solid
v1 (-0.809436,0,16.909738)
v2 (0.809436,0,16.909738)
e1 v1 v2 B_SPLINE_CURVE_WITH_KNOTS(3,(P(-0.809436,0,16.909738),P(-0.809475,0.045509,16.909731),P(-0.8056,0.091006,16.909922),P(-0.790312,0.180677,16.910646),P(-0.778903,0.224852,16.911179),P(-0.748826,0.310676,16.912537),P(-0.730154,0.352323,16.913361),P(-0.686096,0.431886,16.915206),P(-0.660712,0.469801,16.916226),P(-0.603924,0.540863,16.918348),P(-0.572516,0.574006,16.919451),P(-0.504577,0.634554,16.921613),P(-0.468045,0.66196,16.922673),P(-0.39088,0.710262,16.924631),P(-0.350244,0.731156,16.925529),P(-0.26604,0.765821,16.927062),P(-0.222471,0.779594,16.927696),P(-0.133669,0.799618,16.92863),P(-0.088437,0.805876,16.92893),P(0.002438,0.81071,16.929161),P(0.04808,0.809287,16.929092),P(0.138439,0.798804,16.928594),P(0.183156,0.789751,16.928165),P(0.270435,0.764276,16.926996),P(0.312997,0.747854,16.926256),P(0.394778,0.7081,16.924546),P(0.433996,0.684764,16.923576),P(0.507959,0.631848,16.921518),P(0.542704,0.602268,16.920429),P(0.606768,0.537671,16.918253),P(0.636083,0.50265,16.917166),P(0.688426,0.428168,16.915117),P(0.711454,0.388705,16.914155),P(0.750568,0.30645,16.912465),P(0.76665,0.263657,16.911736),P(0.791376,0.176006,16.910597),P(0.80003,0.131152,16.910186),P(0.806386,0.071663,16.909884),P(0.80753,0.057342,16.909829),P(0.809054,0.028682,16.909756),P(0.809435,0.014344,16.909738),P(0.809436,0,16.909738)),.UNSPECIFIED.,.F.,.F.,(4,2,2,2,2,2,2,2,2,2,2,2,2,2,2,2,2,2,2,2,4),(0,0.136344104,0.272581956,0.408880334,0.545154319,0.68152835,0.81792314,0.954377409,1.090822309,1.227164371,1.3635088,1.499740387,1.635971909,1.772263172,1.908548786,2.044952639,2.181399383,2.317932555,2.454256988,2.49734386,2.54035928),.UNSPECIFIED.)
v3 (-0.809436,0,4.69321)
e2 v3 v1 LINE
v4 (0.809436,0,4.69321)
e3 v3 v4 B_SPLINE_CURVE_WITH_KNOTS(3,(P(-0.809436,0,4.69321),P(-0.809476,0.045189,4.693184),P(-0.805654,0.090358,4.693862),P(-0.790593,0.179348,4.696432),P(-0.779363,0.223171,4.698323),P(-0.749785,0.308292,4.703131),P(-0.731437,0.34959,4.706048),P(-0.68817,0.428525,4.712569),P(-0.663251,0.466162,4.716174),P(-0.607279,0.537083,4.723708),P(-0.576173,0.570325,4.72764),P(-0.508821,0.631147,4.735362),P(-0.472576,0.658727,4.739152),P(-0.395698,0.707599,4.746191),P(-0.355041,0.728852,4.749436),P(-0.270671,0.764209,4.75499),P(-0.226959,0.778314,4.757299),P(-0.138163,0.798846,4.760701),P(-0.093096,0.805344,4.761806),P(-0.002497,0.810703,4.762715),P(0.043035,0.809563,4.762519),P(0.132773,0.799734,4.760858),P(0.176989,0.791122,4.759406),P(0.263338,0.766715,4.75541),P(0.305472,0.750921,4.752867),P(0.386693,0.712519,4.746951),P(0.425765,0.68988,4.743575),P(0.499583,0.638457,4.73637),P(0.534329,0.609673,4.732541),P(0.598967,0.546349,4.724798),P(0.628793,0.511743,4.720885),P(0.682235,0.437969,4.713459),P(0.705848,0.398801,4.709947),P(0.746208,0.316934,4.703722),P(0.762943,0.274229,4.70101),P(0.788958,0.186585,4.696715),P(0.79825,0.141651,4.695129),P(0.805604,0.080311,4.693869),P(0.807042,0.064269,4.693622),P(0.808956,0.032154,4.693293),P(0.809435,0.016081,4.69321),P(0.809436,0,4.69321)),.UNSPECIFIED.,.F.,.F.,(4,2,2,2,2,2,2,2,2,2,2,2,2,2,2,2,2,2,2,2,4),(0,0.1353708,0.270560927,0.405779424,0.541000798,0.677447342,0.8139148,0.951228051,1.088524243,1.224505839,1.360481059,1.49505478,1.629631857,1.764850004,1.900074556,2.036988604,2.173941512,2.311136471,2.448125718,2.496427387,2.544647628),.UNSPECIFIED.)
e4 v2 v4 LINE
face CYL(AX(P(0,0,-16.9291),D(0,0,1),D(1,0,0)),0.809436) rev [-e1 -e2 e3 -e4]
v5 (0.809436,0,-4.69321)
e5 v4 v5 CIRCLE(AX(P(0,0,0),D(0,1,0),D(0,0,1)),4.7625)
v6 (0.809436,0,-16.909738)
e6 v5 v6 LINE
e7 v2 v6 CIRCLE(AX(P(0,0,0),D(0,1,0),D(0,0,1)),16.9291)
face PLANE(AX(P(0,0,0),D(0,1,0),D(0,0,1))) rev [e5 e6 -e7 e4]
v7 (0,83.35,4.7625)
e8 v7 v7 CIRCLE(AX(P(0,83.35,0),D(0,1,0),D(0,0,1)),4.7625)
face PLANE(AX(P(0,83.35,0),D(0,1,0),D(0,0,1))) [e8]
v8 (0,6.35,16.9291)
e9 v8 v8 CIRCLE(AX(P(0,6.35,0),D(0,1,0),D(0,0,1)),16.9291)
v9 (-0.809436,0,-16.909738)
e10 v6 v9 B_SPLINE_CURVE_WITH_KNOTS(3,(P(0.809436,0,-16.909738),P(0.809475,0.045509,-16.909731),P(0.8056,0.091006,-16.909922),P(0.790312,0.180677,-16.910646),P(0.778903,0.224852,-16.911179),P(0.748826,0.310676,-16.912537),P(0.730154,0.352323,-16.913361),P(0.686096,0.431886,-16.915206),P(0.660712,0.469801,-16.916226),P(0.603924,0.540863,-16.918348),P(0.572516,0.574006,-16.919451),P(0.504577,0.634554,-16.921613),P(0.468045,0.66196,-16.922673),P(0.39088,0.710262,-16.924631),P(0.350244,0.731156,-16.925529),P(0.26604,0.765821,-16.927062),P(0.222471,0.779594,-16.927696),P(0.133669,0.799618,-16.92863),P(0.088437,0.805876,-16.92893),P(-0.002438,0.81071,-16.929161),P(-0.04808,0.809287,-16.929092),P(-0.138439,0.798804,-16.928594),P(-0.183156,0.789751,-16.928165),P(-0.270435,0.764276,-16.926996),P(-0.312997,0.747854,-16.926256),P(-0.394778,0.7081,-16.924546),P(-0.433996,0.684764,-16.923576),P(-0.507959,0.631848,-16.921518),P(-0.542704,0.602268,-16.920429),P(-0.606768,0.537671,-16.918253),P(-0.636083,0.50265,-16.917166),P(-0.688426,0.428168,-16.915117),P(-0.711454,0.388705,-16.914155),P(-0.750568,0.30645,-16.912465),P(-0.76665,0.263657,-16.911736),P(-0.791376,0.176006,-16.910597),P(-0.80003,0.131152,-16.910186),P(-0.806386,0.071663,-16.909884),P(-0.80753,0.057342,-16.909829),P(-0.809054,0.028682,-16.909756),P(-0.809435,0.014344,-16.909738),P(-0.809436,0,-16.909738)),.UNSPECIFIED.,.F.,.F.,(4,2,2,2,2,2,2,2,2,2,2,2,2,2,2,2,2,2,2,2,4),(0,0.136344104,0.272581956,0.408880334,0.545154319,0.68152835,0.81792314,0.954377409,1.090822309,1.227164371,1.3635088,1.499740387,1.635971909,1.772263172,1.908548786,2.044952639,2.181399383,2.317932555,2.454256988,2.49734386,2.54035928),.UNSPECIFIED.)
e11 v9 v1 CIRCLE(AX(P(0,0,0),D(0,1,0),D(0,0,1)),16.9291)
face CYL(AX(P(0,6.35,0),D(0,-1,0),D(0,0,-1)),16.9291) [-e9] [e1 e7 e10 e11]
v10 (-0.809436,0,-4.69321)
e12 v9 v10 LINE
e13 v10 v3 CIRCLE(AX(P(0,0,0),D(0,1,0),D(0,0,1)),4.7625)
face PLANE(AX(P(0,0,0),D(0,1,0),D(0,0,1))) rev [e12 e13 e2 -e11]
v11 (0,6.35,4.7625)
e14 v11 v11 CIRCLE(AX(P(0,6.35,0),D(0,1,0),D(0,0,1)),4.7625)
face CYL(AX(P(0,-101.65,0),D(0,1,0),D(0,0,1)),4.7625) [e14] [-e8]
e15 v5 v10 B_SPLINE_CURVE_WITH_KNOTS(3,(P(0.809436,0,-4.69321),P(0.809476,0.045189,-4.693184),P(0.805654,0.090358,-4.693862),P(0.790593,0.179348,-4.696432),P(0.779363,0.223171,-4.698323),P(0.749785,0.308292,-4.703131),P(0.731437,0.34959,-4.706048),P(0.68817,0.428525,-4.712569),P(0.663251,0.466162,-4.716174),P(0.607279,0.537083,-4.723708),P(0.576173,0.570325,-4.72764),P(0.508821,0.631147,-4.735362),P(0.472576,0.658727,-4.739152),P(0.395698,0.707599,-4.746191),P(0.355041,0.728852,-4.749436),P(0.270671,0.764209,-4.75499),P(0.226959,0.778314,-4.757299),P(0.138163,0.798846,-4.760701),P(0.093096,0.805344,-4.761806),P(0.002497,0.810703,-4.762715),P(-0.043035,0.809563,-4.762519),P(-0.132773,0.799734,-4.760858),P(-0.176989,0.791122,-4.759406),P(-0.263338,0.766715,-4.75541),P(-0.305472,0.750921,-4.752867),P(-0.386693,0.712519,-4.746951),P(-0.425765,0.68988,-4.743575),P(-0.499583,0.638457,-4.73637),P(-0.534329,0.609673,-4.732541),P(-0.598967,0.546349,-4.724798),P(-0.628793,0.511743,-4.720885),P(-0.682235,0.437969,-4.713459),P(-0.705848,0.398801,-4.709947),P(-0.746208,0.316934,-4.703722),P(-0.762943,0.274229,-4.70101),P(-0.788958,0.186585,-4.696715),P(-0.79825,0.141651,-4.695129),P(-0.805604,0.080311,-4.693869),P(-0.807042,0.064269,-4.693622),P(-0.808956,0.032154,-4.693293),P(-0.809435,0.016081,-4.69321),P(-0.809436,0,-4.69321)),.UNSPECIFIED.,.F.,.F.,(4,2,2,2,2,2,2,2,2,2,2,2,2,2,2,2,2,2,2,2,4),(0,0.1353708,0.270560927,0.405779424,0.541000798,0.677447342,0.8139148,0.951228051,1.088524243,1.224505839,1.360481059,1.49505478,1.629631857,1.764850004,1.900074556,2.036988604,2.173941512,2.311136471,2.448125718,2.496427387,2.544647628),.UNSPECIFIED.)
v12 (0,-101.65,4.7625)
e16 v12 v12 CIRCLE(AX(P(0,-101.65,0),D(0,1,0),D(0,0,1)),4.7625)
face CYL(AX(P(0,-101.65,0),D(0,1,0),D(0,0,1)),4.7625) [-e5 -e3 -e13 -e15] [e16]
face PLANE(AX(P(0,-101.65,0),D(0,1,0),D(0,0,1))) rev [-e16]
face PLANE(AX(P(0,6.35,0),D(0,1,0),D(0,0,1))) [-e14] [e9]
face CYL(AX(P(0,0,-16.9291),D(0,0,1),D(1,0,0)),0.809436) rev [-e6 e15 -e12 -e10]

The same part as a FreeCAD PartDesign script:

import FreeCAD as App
import Part
import Sketcher

V = App.Vector
Q = App.Units.Quantity

doc = App.newDocument("Part")
body = doc.addObject("PartDesign::Body", "Body")

sketch1 = doc.addObject("Sketcher::SketchObject", "Sketch")
body.addObject(sketch1)
sketch1.AttachmentSupport = (doc.XZ_Plane, [""])
sketch1.MapMode = "FlatFace"
sketch1.addGeometry(Part.Circle(V(0, 0, 0), V(0, 0, 1), 17), False)
sketch1.addConstraint(Sketcher.Constraint("Coincident", 0, 3, -1, 1))
sketch1.addConstraint(Sketcher.Constraint("Diameter", 0, Q("1.333 in")))
pad1 = doc.addObject("PartDesign::Pad", "Pad")
body.addObject(pad1)
pad1.Profile = sketch1
pad1.Length = Q("0.25 in")
pad1.Reversed = True

sketch2 = doc.addObject("Sketcher::SketchObject", "Sketch001")
body.addObject(sketch2)
sketch2.AttachmentSupport = (doc.XY_Plane, [""])
sketch2.MapMode = "FlatFace"
sketch2.addGeometry(Part.Circle(V(0, 0, 0), V(0, 0, 1), 0.8), False)
sketch2.addConstraint(Sketcher.Constraint("Coincident", 0, 3, -1, 1))
sketch2.addConstraint(Sketcher.Constraint("Diameter", 0, Q("1.618872 mm")))
pocket1 = doc.addObject("PartDesign::Pocket", "Pocket")
body.addObject(pocket1)
pocket1.Profile = sketch2
pocket1.Type = "ThroughAll"
pocket1.Midplane = True

sketch3 = doc.addObject("Sketcher::SketchObject", "Sketch002")
body.addObject(sketch3)
sketch3.AttachmentSupport = (doc.XZ_Plane, [""])
sketch3.MapMode = "FlatFace"
sketch3.AttachmentOffset = App.Placement(V(0, 0, -0.25 * 25.4), App.Rotation())
sketch3.addGeometry(Part.Circle(V(0, 0, 0), V(0, 0, 1), 4.8), False)
sketch3.addConstraint(Sketcher.Constraint("Coincident", 0, 3, -1, 1))
sketch3.addConstraint(Sketcher.Constraint("Diameter", 0, Q("0.375 in")))
pad2 = doc.addObject("PartDesign::Pad", "Pad001")
body.addObject(pad2)
pad2.Profile = sketch3
pad2.Type = "TwoLengths"
pad2.Length = 77
pad2.Length2 = 108
pad2.Reversed = True

doc.recompute()
